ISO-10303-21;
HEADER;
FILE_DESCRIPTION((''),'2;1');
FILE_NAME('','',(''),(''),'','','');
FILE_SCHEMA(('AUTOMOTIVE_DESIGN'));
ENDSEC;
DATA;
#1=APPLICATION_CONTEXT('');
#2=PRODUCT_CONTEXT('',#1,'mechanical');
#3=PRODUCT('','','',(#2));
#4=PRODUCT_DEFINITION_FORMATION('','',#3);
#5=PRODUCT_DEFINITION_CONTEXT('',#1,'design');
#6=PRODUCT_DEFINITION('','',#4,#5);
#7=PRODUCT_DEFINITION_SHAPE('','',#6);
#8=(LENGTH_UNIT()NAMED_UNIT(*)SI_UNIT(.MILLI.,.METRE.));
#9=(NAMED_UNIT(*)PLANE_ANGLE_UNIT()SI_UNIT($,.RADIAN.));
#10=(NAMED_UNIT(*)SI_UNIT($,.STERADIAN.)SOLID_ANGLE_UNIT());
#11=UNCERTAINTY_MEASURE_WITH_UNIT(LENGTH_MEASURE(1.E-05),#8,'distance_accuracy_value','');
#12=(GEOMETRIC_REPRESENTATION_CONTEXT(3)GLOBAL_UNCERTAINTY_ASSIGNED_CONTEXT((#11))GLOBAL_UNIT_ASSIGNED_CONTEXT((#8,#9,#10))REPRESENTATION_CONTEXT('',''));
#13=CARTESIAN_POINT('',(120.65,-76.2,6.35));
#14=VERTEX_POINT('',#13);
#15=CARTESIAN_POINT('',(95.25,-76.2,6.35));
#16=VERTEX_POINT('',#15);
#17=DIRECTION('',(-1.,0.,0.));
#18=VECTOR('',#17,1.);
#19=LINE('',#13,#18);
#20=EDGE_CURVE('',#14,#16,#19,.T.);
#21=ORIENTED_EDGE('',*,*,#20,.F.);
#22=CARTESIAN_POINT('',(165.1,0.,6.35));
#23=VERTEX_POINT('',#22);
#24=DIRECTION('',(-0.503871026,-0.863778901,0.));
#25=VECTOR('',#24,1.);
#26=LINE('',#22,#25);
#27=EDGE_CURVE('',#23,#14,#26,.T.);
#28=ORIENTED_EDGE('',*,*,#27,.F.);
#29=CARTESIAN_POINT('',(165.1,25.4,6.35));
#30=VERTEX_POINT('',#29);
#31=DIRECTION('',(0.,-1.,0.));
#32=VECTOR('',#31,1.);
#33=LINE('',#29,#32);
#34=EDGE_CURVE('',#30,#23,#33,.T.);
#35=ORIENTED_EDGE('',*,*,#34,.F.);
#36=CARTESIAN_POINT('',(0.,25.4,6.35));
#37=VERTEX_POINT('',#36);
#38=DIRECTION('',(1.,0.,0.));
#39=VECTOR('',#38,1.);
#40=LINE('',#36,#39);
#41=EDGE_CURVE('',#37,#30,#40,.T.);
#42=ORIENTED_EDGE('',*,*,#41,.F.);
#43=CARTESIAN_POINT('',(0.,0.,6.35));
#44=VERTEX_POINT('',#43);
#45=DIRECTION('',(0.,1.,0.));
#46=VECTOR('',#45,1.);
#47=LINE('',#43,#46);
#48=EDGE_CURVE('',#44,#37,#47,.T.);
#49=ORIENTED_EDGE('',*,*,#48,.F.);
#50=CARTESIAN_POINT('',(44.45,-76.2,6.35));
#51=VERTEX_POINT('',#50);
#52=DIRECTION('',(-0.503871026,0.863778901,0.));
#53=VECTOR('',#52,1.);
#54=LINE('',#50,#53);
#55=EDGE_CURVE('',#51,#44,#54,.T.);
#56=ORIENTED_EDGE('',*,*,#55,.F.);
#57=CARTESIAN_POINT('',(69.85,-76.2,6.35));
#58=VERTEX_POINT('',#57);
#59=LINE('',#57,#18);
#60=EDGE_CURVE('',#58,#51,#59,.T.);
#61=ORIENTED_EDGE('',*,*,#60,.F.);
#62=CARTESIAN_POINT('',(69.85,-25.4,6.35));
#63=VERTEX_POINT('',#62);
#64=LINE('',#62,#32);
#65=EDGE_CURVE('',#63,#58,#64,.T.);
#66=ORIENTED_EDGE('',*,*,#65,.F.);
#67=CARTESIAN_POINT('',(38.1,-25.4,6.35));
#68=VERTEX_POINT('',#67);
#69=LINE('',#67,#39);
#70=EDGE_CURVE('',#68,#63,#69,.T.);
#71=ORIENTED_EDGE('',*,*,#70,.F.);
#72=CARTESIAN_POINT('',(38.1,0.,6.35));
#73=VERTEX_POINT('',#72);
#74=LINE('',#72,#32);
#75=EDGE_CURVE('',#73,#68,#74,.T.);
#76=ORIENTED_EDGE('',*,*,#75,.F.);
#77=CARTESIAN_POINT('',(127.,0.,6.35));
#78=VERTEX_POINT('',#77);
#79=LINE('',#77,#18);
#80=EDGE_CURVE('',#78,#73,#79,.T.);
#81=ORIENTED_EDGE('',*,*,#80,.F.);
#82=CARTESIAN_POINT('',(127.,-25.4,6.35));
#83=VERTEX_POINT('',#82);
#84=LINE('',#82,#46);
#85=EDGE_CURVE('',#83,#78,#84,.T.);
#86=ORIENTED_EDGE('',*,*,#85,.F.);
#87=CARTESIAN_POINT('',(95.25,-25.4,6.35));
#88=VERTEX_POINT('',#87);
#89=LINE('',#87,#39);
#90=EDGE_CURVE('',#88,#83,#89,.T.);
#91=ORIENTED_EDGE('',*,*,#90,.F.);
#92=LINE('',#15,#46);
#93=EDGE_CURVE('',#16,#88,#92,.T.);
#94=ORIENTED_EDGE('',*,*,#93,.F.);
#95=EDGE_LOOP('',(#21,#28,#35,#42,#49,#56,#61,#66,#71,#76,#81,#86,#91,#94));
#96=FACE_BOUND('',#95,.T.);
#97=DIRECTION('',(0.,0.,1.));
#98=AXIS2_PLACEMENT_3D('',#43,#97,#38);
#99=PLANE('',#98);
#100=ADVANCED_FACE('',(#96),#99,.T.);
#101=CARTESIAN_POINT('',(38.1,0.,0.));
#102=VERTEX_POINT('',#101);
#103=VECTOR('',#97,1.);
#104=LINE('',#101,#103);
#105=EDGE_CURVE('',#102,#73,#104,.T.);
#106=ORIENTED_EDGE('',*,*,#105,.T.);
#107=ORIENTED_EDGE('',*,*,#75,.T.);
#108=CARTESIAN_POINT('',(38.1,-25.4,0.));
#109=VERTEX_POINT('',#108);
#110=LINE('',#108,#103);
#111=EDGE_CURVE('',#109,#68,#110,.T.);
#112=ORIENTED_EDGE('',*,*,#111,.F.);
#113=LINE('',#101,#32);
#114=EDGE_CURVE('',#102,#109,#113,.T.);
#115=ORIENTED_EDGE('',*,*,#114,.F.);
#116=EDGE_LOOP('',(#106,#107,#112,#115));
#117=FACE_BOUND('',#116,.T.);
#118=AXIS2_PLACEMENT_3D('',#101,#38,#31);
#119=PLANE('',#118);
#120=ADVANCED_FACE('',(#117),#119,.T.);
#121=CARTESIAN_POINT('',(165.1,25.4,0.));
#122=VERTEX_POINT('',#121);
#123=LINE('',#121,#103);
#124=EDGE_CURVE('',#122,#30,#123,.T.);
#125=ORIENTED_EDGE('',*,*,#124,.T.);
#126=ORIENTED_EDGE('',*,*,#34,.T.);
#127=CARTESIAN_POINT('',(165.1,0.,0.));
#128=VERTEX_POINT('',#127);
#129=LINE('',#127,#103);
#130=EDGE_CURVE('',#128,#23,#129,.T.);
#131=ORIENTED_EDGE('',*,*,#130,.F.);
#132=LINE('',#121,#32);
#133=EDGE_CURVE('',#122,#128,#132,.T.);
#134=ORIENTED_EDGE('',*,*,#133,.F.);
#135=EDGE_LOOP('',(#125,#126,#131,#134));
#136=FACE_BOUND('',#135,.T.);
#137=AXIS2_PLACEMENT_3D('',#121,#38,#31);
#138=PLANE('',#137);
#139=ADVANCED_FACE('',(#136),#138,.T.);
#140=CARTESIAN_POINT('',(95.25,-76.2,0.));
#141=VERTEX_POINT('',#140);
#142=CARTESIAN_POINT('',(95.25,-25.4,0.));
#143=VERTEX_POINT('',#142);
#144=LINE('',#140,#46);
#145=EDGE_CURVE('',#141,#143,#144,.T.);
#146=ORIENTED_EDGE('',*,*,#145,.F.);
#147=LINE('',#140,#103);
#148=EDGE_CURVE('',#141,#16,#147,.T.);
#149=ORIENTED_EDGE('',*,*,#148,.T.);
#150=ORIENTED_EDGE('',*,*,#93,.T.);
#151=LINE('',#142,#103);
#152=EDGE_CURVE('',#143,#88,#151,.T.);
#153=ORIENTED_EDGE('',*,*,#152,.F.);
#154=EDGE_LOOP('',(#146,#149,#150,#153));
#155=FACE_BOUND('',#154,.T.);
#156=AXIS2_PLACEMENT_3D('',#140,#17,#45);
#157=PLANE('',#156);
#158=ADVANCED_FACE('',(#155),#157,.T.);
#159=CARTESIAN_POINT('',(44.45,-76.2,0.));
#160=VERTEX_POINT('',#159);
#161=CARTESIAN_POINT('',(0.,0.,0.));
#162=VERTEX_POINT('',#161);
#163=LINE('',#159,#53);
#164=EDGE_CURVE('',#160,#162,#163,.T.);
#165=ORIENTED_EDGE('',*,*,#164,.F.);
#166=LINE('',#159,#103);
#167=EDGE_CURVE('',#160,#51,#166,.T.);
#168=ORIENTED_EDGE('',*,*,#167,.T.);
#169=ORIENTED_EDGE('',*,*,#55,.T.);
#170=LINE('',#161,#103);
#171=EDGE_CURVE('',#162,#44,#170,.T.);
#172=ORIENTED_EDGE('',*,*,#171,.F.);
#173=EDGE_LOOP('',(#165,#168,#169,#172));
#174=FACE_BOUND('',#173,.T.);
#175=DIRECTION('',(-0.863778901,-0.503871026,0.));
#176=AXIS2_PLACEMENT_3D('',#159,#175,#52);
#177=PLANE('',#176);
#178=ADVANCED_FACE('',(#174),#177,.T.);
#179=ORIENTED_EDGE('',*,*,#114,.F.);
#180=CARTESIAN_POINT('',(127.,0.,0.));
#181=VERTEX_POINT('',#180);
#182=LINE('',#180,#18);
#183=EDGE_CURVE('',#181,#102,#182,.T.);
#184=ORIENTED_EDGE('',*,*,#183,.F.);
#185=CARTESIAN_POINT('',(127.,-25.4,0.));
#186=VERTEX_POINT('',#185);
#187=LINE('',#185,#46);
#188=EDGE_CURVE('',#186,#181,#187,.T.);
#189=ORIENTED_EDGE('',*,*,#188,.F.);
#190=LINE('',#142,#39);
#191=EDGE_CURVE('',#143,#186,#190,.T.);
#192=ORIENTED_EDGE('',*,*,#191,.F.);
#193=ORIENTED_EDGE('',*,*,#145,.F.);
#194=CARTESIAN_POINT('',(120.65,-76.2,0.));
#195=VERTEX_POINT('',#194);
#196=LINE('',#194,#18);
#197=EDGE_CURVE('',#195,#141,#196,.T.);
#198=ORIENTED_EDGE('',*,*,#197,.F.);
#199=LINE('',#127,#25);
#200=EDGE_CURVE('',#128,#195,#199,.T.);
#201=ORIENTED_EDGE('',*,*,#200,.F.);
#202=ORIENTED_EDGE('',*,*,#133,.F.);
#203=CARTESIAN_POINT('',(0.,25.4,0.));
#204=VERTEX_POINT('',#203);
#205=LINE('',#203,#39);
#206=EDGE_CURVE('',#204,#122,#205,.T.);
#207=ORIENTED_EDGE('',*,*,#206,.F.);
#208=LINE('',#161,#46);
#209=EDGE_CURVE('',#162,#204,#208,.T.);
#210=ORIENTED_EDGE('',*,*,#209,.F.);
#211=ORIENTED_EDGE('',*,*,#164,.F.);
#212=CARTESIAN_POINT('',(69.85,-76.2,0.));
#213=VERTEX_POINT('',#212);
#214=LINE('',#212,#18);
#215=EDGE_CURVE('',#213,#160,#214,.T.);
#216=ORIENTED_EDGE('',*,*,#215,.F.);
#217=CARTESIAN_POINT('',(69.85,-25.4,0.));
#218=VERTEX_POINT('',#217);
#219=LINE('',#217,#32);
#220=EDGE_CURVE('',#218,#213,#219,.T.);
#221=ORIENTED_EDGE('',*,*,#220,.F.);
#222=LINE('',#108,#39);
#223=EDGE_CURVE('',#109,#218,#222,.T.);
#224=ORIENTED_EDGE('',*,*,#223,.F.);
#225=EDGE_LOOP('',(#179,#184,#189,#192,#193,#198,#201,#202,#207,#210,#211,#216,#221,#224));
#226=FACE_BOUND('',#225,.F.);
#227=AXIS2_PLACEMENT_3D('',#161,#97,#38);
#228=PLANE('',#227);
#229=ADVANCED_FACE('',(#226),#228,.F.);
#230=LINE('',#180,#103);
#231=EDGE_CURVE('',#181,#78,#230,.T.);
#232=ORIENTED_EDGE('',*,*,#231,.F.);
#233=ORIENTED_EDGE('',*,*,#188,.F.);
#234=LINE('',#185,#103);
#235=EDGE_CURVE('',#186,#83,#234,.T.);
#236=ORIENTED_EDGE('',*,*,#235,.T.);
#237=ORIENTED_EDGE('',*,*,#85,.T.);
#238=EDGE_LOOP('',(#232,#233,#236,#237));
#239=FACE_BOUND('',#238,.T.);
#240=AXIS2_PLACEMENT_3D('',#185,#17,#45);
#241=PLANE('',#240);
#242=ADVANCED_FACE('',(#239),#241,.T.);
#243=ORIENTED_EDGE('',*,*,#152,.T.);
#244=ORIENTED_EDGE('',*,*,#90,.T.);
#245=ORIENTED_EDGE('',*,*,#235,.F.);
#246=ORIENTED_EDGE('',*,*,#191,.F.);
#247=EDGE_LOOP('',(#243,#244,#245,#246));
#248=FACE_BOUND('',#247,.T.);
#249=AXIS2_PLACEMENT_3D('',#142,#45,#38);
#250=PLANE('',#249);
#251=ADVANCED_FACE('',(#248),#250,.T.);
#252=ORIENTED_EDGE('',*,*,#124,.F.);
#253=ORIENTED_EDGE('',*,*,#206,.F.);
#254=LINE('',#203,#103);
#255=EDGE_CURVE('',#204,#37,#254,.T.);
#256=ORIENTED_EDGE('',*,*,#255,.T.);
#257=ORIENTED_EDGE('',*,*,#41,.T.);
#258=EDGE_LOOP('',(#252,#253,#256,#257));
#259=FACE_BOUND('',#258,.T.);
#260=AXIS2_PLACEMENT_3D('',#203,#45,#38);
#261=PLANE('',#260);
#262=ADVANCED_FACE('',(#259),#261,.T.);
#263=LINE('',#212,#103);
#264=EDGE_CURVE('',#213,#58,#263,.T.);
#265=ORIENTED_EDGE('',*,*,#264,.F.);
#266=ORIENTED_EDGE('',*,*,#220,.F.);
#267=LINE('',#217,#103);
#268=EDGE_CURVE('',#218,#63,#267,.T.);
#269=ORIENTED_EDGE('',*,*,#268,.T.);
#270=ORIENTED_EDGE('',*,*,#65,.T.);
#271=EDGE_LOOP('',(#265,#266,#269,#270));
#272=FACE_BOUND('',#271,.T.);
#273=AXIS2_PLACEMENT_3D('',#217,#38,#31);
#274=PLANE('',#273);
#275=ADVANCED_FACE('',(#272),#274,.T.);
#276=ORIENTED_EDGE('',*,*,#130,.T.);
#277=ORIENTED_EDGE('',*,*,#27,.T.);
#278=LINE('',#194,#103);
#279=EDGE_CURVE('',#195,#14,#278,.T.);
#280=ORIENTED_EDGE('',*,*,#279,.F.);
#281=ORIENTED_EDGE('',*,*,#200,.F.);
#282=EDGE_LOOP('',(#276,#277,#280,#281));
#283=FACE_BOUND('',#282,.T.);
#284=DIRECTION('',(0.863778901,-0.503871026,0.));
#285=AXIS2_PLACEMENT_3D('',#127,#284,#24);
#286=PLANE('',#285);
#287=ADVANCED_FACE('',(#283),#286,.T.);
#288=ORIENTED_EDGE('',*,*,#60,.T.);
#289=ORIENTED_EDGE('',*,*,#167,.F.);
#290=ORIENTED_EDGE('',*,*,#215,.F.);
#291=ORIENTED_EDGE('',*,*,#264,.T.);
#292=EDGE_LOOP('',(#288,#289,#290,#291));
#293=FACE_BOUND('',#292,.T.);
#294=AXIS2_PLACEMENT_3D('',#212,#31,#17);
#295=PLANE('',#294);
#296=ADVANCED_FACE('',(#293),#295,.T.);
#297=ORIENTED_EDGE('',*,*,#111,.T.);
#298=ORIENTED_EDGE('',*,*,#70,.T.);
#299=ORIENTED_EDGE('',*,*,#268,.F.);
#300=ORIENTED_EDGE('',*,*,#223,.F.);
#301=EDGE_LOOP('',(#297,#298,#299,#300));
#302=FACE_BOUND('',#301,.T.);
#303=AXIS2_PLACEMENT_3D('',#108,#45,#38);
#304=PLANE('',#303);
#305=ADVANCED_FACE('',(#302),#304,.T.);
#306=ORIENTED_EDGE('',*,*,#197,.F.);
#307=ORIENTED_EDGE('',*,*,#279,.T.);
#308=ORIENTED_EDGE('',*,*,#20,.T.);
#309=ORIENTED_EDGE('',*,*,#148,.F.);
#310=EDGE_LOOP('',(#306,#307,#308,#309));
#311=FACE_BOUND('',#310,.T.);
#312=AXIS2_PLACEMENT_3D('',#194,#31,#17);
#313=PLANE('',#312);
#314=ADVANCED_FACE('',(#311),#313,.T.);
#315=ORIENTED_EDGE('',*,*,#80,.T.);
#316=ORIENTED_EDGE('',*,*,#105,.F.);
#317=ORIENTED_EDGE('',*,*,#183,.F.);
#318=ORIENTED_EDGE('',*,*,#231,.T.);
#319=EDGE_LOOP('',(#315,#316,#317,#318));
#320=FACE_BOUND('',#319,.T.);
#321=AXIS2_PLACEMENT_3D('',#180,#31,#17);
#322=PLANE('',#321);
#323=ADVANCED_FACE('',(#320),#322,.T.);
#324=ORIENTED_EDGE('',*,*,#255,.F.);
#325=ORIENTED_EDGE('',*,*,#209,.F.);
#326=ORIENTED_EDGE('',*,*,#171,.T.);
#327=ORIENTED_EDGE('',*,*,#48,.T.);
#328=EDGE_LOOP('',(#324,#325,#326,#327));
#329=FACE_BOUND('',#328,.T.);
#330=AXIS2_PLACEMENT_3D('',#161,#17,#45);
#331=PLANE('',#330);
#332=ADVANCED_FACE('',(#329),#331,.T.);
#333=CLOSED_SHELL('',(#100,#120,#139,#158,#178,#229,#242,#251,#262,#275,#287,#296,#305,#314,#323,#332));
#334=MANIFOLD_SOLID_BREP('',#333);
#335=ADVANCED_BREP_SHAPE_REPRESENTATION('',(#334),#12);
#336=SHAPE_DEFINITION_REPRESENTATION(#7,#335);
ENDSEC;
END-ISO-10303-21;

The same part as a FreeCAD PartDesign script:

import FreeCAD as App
import Part
import Sketcher
Q = App.Units.Quantity


def add_polygon(sketch, points):
    """Adds a closed chain of lines whose ends are joined by coincident constraints."""
    first, n = sketch.GeometryCount, len(points)
    for a, b in zip(points, points[1:] + points[:1]):
        sketch.addGeometry(Part.LineSegment(App.Vector(*a, 0), App.Vector(*b, 0)), False)
    for i in range(n):
        sketch.addConstraint(Sketcher.Constraint("Coincident", first + i, 2, first + (i + 1) % n, 1))

doc = App.newDocument("Part")
body = doc.addObject("PartDesign::Body", "Body")

sketch1 = body.newObject("Sketcher::SketchObject", "Sketch")
sketch1.AttachmentSupport = (doc.getObject("XY_Plane"), [""])
sketch1.MapMode = "FlatFace"
add_polygon(sketch1, [(0, 25.4), (0, 0), (44.45, -76.2), (69.85, -76.2), (69.85, -25.4), (38.1, -25.4), (38.1, 0), (127, 0), (127, -25.4), (95.25, -25.4), (95.25, -76.2), (120.65, -76.2), (165.1, 0), (165.1, 25.4)])
sketch1.addConstraint([
    Sketcher.Constraint("Vertical", 0),
    Sketcher.Constraint("Horizontal", 2),
    Sketcher.Constraint("Vertical", 3),
    Sketcher.Constraint("Horizontal", 4),
    Sketcher.Constraint("Vertical", 5),
    Sketcher.Constraint("Horizontal", 6),
    Sketcher.Constraint("Vertical", 7),
    Sketcher.Constraint("Horizontal", 8),
    Sketcher.Constraint("Vertical", 9),
    Sketcher.Constraint("Horizontal", 10),
    Sketcher.Constraint("Vertical", 12),
    Sketcher.Constraint("Horizontal", 13),
    Sketcher.Constraint("Coincident", 0, 2, -1, 1),
    Sketcher.Constraint("PointOnObject", 5, 2, -1),
    Sketcher.Constraint("PointOnObject", 11, 2, -1),
    Sketcher.Constraint("Horizontal", 4, 2, 7, 2),
    Sketcher.Constraint("Horizontal", 2, 2, 9, 2),
    Sketcher.Constraint("Equal", 4, 8),
    Sketcher.Constraint("Equal", 2, 10),
    Sketcher.Constraint("Equal", 10, 0),
    Sketcher.Constraint("Equal", 0, 5),
    Sketcher.Constraint("Equal", 1, 11),
    Sketcher.Constraint("DistanceX", 2, 1, 2, 2, Q("1 in")),
    Sketcher.Constraint("DistanceX", 6, 1, 6, 2, Q("3.5 in")),
    Sketcher.Constraint("DistanceX", 13, 2, 13, 1, Q("6.5 in")),
    Sketcher.Constraint("DistanceX", 3, 2, 8, 2, Q("1 in")),
    Sketcher.Constraint("DistanceY", 3, 1, 3, 2, Q("2 in")),
])
pad1 = body.newObject("PartDesign::Pad", "Pad")
pad1.Profile = sketch1
pad1.Length = Q("0.25 in")

doc.recompute()
